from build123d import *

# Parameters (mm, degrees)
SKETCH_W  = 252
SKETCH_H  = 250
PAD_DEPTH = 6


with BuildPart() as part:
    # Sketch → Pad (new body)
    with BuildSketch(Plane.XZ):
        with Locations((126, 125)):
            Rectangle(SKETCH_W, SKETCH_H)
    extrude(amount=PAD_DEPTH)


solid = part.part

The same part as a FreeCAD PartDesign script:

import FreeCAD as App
import Part
import Sketcher
from FreeCAD import Vector
Q = App.Units.Quantity


def add_polygon(sketch, points):
    """Adds a closed chain of lines whose ends are joined by coincident constraints."""
    first, n = sketch.GeometryCount, len(points)
    for a, b in zip(points, points[1:] + points[:1]):
        sketch.addGeometry(Part.LineSegment(App.Vector(*a, 0), App.Vector(*b, 0)), False)
    for i in range(n):
        sketch.addConstraint(Sketcher.Constraint("Coincident", first + i, 2, first + (i + 1) % n, 1))

doc = App.newDocument("Part")
params = doc.addObject("Spreadsheet::Sheet", "Params")
for row, (alias, value) in enumerate([
    ("sketch1_width", "252 mm"),
    ("sketch1_height", "250 mm"),
    ("pad1_length", "6 mm"),
], start=1):
    params.set(f"A{row}", alias)
    params.set(f"B{row}", "=" + value)
    params.setAlias(f"B{row}", alias)

body = doc.addObject("PartDesign::Body", "Body")

sketch1 = doc.addObject("Sketcher::SketchObject", "Sketch")
body.addObject(sketch1)
sketch1.AttachmentSupport = (doc.XZ_Plane, [""])
sketch1.MapMode = "FlatFace"
add_polygon(sketch1, [(0, 250), (0, 0), (252, 0), (252, 250)])
sketch1.addConstraint(Sketcher.Constraint("Vertical", 0))
sketch1.addConstraint(Sketcher.Constraint("Horizontal", 1))
sketch1.addConstraint(Sketcher.Constraint("Vertical", 2))
sketch1.addConstraint(Sketcher.Constraint("Horizontal", 3))
sketch1.addConstraint(Sketcher.Constraint("Coincident", 0, 2, -1, 1))
sketch1.addConstraint(Sketcher.Constraint("DistanceX", 1, 1, 1, 2, Q("252 mm")))
sketch1.addConstraint(Sketcher.Constraint("DistanceY", 0, 2, 0, 1, Q("250 mm")))
sketch1.setExpression("Constraints[9]", "Params.sketch1_width")
sketch1.setExpression("Constraints[10]", "Params.sketch1_height")
pad1 = doc.addObject("PartDesign::Pad", "Pad")
body.addObject(pad1)
pad1.Profile = sketch1
pad1.setExpression("Length", "Params.pad1_length")

doc.recompute()
